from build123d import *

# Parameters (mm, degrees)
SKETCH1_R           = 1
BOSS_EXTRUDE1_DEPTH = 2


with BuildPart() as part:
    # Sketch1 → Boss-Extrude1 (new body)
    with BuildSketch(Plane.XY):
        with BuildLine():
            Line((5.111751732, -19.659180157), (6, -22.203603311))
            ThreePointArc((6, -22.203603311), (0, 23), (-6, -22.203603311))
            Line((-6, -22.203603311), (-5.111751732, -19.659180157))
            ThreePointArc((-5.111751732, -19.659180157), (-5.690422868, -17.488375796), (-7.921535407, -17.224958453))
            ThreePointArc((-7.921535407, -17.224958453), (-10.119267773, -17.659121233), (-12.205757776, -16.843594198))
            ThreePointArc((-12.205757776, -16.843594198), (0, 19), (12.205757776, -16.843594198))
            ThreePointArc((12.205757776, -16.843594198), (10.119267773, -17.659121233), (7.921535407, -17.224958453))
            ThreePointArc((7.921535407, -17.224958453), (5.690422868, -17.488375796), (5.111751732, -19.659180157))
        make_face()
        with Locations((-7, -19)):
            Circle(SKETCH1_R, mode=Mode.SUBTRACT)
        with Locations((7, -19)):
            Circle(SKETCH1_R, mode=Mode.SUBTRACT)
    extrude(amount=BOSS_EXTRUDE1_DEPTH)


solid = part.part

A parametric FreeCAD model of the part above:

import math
import FreeCAD as App
import Part
import Sketcher

doc = App.newDocument("Part")
body = doc.addObject("PartDesign::Body", "Body")

# Sketch on XY plane
sketch1 = body.newObject("Sketcher::SketchObject", "Sketch")
sketch1.AttachmentSupport = (doc.getObject("XY_Plane"), [""])
sketch1.MapMode = "FlatFace"
sketch1.addGeometry([
    Part.LineSegment(App.Vector(5.1, -19.7, 0), App.Vector(6, -22.2, 0)),  # 0
    Part.ArcOfCircle(Part.Circle(App.Vector(0, 0, 0), App.Vector(0, 0, 1), 23), math.radians(-75), math.radians(255)),  # 1
    Part.LineSegment(App.Vector(-6, -22.2, 0), App.Vector(-5.1, -19.7, 0)),  # 2
    Part.ArcOfCircle(Part.Circle(App.Vector(-7, -19, 0), App.Vector(0, 0, 1), 2), math.radians(-19), math.radians(117)),  # 3
    Part.ArcOfCircle(Part.Circle(App.Vector(-9.8, -13.7, 0), App.Vector(0, 0, 1), 4), math.radians(-128), math.radians(-63)),  # 4
    Part.ArcOfCircle(Part.Circle(App.Vector(0, -1, 0), App.Vector(0, 0, 1), 20), math.radians(-52), math.radians(232)),  # 5
    Part.ArcOfCircle(Part.Circle(App.Vector(9.8, -13.7, 0), App.Vector(0, 0, 1), 4), math.radians(-117), math.radians(-52)),  # 6
    Part.ArcOfCircle(Part.Circle(App.Vector(7, -19, 0), App.Vector(0, 0, 1), 2), math.radians(63), math.radians(199)),  # 7
    Part.Circle(App.Vector(-7, -19, 0), App.Vector(0, 0, 1), 1),  # 8
    Part.Circle(App.Vector(7, -19, 0), App.Vector(0, 0, 1), 1),  # 9
], False)
sketch1.addConstraint([
    Sketcher.Constraint("Coincident", 0, 2, 1, 1),
    Sketcher.Constraint("Coincident", 1, 2, 2, 1),
    Sketcher.Constraint("Tangent", 2, 2, 3, 1),
    Sketcher.Constraint("Tangent", 3, 2, 4, 2),
    Sketcher.Constraint("Tangent", 4, 1, 5, 2),
    Sketcher.Constraint("Tangent", 5, 1, 6, 2),
    Sketcher.Constraint("Tangent", 6, 1, 7, 1),
    Sketcher.Constraint("Tangent", 7, 2, 0, 1),
    Sketcher.Constraint("Coincident", 1, 3, -1, 1),
    Sketcher.Constraint("Coincident", 8, 3, 3, 3),
    Sketcher.Constraint("Coincident", 9, 3, 7, 3),
    Sketcher.Constraint("Equal", 4, 6),
    Sketcher.Constraint("Equal", 3, 7),
    Sketcher.Constraint("Equal", 8, 9),
    Sketcher.Constraint("Symmetric", 4, 3, 6, 3, -2),
    Sketcher.Constraint("Symmetric", 2, 2, 7, 2, -2),
    Sketcher.Constraint("Diameter", 8, 2.0),
    Sketcher.Constraint("Radius", 1, 23.0),
    Sketcher.Constraint("Radius", 3, 2.0),
    Sketcher.Constraint("Radius", 4, 4.0),
    Sketcher.Constraint("Radius", 5, 20.0),
    Sketcher.Constraint("DistanceX", 3, 3, -1, 1, 7.0),
    Sketcher.Constraint("DistanceY", 3, 3, -1, 1, 19.0),
    Sketcher.Constraint("DistanceY", 5, 3, -1, 1, 1.0),
    Sketcher.Constraint("DistanceX", -1, 1, 0, 2, 6.0),
])
pad1 = body.newObject("PartDesign::Pad", "Pad")
pad1.Profile = sketch1
pad1.Length = 2

doc.recompute()
